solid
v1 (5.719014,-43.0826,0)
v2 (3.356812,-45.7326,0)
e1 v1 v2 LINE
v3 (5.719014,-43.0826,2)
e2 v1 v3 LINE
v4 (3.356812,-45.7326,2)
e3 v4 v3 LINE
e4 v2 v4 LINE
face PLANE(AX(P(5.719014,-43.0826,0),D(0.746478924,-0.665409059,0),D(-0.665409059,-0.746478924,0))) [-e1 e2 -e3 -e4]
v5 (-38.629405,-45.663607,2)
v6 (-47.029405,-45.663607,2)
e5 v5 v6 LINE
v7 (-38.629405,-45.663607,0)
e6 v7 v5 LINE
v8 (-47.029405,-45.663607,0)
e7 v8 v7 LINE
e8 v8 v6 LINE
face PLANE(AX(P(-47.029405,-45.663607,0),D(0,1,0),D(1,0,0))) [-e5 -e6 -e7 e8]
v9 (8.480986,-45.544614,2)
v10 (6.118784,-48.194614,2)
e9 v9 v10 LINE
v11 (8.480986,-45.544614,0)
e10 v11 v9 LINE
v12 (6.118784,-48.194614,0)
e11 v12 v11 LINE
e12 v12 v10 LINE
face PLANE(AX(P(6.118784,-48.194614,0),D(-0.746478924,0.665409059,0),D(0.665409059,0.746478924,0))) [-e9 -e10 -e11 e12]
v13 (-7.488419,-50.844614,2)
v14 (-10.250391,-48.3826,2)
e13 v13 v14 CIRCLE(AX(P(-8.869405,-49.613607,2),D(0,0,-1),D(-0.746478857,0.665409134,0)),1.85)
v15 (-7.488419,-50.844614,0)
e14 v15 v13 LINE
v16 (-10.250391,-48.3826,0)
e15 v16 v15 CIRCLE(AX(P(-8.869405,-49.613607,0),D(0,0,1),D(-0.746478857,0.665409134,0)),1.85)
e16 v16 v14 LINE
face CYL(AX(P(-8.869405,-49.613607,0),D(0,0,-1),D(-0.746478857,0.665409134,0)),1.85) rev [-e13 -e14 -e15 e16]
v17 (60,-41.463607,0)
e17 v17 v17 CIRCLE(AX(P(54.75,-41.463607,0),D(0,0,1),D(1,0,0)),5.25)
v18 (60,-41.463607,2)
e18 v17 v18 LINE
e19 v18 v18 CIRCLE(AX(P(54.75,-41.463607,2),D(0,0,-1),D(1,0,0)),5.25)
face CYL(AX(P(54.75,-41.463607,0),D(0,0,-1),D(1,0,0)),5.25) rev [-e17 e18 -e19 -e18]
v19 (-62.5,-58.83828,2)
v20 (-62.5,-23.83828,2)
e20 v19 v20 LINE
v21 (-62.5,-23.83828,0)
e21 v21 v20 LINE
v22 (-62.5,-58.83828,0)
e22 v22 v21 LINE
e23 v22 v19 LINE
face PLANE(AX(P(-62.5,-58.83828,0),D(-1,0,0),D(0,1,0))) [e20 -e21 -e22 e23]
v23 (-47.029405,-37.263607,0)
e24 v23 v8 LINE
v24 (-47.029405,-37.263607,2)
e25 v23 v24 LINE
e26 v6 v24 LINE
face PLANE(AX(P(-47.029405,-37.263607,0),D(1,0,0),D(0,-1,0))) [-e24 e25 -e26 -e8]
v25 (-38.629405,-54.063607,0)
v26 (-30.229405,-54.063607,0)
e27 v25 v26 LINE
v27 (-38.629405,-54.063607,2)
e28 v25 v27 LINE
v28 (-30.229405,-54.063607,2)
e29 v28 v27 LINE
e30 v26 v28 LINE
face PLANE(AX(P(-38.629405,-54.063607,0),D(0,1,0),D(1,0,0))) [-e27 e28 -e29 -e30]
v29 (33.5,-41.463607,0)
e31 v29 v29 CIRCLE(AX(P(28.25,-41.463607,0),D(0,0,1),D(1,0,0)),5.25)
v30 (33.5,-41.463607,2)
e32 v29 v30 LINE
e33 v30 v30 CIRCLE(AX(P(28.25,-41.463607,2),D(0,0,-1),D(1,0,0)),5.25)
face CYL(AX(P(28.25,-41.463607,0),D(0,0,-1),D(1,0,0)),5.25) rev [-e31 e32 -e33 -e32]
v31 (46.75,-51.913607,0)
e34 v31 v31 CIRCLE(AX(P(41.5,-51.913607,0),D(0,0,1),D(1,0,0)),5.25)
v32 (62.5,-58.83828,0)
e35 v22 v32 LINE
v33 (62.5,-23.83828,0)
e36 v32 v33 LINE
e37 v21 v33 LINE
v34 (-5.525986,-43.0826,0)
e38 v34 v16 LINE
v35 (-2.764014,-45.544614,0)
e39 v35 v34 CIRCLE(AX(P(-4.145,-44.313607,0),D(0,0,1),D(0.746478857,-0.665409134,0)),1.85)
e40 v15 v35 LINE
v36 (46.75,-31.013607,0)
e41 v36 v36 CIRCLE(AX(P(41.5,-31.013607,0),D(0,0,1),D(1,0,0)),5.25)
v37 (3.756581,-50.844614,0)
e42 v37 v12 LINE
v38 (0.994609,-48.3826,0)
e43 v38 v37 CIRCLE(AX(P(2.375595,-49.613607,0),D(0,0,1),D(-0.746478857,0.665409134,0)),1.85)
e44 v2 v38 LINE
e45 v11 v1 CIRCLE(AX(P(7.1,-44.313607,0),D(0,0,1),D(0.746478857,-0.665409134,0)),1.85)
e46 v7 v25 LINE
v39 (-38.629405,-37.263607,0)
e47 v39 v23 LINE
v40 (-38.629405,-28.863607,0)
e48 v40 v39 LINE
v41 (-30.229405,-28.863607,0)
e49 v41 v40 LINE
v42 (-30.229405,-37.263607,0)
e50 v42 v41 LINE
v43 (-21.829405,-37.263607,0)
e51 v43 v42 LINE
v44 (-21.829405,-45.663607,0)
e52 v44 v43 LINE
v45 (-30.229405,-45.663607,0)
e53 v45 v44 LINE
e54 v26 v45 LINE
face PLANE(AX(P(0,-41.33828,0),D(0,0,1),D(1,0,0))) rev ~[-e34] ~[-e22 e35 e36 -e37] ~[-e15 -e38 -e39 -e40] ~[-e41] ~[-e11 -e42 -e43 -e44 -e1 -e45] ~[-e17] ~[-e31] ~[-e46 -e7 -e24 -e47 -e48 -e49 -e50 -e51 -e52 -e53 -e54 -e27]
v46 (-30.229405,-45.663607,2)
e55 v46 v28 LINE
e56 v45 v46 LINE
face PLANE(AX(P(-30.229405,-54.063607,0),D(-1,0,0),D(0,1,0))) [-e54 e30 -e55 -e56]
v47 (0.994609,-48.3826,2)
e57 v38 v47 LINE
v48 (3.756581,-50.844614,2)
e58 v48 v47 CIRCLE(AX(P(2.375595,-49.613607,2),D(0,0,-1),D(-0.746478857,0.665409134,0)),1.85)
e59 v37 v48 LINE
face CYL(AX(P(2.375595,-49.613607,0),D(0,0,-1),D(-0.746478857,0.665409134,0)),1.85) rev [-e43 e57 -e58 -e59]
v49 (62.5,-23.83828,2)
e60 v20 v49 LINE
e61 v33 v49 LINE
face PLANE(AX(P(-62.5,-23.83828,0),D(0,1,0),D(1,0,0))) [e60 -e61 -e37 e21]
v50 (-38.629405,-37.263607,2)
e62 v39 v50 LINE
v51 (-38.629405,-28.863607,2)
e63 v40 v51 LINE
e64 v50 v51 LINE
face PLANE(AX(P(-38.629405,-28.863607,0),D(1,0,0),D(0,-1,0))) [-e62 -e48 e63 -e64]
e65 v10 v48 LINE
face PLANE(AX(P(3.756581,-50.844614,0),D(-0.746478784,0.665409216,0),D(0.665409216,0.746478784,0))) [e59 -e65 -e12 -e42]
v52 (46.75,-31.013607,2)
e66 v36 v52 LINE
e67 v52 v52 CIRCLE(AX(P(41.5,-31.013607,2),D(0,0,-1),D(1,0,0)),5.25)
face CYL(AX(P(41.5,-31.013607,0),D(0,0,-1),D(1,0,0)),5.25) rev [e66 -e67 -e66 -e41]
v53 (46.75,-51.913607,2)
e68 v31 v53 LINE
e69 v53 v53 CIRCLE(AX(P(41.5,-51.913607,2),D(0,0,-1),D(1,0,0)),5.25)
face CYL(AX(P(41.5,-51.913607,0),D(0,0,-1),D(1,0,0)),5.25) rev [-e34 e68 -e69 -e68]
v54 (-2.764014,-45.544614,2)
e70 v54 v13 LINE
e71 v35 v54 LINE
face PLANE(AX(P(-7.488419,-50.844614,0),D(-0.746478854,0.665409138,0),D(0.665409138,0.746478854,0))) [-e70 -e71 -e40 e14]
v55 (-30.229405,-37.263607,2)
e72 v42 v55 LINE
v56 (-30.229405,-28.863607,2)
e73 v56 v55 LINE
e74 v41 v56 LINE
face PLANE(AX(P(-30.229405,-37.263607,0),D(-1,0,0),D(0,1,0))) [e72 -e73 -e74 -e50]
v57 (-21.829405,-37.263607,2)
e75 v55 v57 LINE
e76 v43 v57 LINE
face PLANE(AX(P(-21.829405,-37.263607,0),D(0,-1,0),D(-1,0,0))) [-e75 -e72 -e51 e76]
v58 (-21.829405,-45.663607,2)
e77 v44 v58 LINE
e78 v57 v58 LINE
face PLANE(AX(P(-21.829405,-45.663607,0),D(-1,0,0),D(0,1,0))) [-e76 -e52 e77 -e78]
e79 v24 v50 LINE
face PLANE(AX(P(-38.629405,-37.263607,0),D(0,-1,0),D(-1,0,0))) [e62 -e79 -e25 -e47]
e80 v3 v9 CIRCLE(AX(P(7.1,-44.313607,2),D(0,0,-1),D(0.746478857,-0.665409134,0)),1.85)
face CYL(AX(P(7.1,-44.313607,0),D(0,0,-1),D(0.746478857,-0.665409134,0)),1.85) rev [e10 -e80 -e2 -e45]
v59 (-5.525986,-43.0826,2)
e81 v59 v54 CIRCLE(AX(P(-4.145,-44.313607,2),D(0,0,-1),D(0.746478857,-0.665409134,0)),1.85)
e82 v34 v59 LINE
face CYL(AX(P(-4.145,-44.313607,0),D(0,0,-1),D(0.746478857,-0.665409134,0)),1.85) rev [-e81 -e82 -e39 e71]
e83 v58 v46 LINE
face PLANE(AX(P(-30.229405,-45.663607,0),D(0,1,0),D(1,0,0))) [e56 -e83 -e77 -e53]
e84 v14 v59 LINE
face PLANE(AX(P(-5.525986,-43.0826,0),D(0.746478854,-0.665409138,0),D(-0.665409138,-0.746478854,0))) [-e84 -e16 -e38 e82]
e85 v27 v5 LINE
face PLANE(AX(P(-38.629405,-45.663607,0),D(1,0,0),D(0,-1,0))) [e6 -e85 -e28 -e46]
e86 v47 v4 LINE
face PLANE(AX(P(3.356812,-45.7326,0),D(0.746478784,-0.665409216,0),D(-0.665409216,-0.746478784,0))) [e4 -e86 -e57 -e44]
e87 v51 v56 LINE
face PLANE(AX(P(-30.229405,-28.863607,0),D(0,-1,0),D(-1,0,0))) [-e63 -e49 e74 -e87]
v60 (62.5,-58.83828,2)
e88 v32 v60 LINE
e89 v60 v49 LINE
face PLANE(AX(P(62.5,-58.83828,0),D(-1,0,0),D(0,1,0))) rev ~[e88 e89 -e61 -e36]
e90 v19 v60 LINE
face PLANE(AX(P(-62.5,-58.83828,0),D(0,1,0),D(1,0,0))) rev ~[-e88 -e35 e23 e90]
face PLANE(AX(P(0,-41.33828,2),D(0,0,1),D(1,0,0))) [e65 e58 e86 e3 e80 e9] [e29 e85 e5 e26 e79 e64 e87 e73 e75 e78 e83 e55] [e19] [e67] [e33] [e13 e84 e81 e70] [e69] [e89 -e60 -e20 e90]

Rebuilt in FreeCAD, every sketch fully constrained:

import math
import FreeCAD as App
import Part
import Sketcher
Q = App.Units.Quantity

doc = App.newDocument("Part")
body = doc.addObject("PartDesign::Body", "Body")

sketch1 = body.newObject("Sketcher::SketchObject", "Sketch")
sketch1.AttachmentSupport = (doc.getObject("XY_Plane"), [""])
sketch1.MapMode = "FlatFace"
sketch1.addGeometry([
    Part.LineSegment(App.Vector(-62.5, -23.83828, 0), App.Vector(-62.5, -58.83828, 0)),
    Part.LineSegment(App.Vector(-62.5, -58.83828, 0), App.Vector(62.5, -58.83828, 0)),
    Part.LineSegment(App.Vector(62.5, -58.83828, 0), App.Vector(62.5, -23.83828, 0)),
    Part.LineSegment(App.Vector(62.5, -23.83828, 0), App.Vector(-62.5, -23.83828, 0)),
], False)
sketch1.addConstraint([
    Sketcher.Constraint("Coincident", 0, 2, 1, 1),
    Sketcher.Constraint("Coincident", 1, 2, 2, 1),
    Sketcher.Constraint("Coincident", 2, 2, 3, 1),
    Sketcher.Constraint("Coincident", 3, 2, 0, 1),
    Sketcher.Constraint("Vertical", 0),
    Sketcher.Constraint("Horizontal", 1),
    Sketcher.Constraint("Vertical", 2),
    Sketcher.Constraint("Horizontal", 3),
    Sketcher.Constraint("DistanceX", 1, 1, 1, 2, Q("125 mm")),
    Sketcher.Constraint("DistanceY", 0, 2, 0, 1, Q("35 mm")),
    Sketcher.Constraint("DistanceX", 0, 2, -1, 1, Q("62.5 mm")),
    Sketcher.Constraint("DistanceY", 0, 2, -1, 1, Q("58.83828 mm")),
])
pad1 = body.newObject("PartDesign::Pad", "Pad")
pad1.Profile = sketch1
pad1.Length = 2

sketch2 = body.newObject("Sketcher::SketchObject", "Sketch001")
sketch2.AttachmentSupport = (doc.getObject("XY_Plane"), [""])
sketch2.MapMode = "FlatFace"
sketch2.addGeometry([
    Part.Circle(App.Vector(41.5, -31.013607, 0), App.Vector(0, 0, 1), 5.25),
    Part.Circle(App.Vector(54.75, -41.463607, 0), App.Vector(0, 0, 1), 5.25),
    Part.Circle(App.Vector(41.5, -51.913607, 0), App.Vector(0, 0, 1), 5.25),
    Part.Circle(App.Vector(28.25, -41.463607, 0), App.Vector(0, 0, 1), 5.25),
    Part.LineSegment(App.Vector(3.356812, -45.7326, 0), App.Vector(0.994609, -48.3826, 0)),
    Part.ArcOfCircle(Part.Circle(App.Vector(2.375595, -49.613607, 0), App.Vector(0, 0, 1), 1.85), math.radians(138.286279), math.radians(318.286279)),
    Part.LineSegment(App.Vector(3.756581, -50.844614, 0), App.Vector(6.118784, -48.194614, 0)),
    Part.LineSegment(App.Vector(6.118784, -48.194614, 0), App.Vector(8.480986, -45.544614, 0)),
    Part.ArcOfCircle(Part.Circle(App.Vector(7.1, -44.313607, 0), App.Vector(0, 0, 1), 1.85), math.radians(-41.713721), math.radians(138.286279)),
    Part.LineSegment(App.Vector(5.719014, -43.0826, 0), App.Vector(3.356812, -45.7326, 0)),
    Part.LineSegment(App.Vector(-5.525986, -43.0826, 0), App.Vector(-10.250391, -48.3826, 0)),
    Part.ArcOfCircle(Part.Circle(App.Vector(-8.869405, -49.613607, 0), App.Vector(0, 0, 1), 1.85), math.radians(138.286279), math.radians(318.286279)),
    Part.LineSegment(App.Vector(-7.488419, -50.844614, 0), App.Vector(-2.764014, -45.544614, 0)),
    Part.ArcOfCircle(Part.Circle(App.Vector(-4.145, -44.313607, 0), App.Vector(0, 0, 1), 1.85), math.radians(-41.713721), math.radians(138.286279)),
    Part.LineSegment(App.Vector(-21.829405, -37.263607, 0), App.Vector(-30.229405, -37.263607, 0)),
    Part.LineSegment(App.Vector(-30.229405, -37.263607, 0), App.Vector(-30.229405, -28.863607, 0)),
    Part.LineSegment(App.Vector(-30.229405, -28.863607, 0), App.Vector(-38.629405, -28.863607, 0)),
    Part.LineSegment(App.Vector(-38.629405, -28.863607, 0), App.Vector(-38.629405, -37.263607, 0)),
    Part.LineSegment(App.Vector(-38.629405, -37.263607, 0), App.Vector(-47.029405, -37.263607, 0)),
    Part.LineSegment(App.Vector(-47.029405, -37.263607, 0), App.Vector(-47.029405, -45.663607, 0)),
    Part.LineSegment(App.Vector(-47.029405, -45.663607, 0), App.Vector(-38.629405, -45.663607, 0)),
    Part.LineSegment(App.Vector(-38.629405, -45.663607, 0), App.Vector(-38.629405, -54.063607, 0)),
    Part.LineSegment(App.Vector(-38.629405, -54.063607, 0), App.Vector(-30.229405, -54.063607, 0)),
    Part.LineSegment(App.Vector(-30.229405, -54.063607, 0), App.Vector(-30.229405, -45.663607, 0)),
    Part.LineSegment(App.Vector(-30.229405, -45.663607, 0), App.Vector(-21.829405, -45.663607, 0)),
    Part.LineSegment(App.Vector(-21.829405, -45.663607, 0), App.Vector(-21.829405, -37.263607, 0)),
], False)
sketch2.addConstraint([
    Sketcher.Constraint("Tangent", 4, 2, 5, 1),
    Sketcher.Constraint("Tangent", 5, 2, 6, 1),
    Sketcher.Constraint("Coincident", 6, 2, 7, 1),
    Sketcher.Constraint("Tangent", 7, 2, 8, 1),
    Sketcher.Constraint("Tangent", 8, 2, 9, 1),
    Sketcher.Constraint("Coincident", 9, 2, 4, 1),
    Sketcher.Constraint("Tangent", 10, 2, 11, 1),
    Sketcher.Constraint("Tangent", 11, 2, 12, 1),
    Sketcher.Constraint("Tangent", 12, 2, 13, 1),
    Sketcher.Constraint("Tangent", 13, 2, 10, 1),
    Sketcher.Constraint("Coincident", 14, 2, 15, 1),
    Sketcher.Constraint("Coincident", 15, 2, 16, 1),
    Sketcher.Constraint("Coincident", 16, 2, 17, 1),
    Sketcher.Constraint("Coincident", 17, 2, 18, 1),
    Sketcher.Constraint("Coincident", 18, 2, 19, 1),
    Sketcher.Constraint("Coincident", 19, 2, 20, 1),
    Sketcher.Constraint("Coincident", 20, 2, 21, 1),
    Sketcher.Constraint("Coincident", 21, 2, 22, 1),
    Sketcher.Constraint("Coincident", 22, 2, 23, 1),
    Sketcher.Constraint("Coincident", 23, 2, 24, 1),
    Sketcher.Constraint("Coincident", 24, 2, 25, 1),
    Sketcher.Constraint("Coincident", 25, 2, 14, 1),
    Sketcher.Constraint("Horizontal", 14),
    Sketcher.Constraint("Vertical", 15),
    Sketcher.Constraint("Horizontal", 16),
    Sketcher.Constraint("Vertical", 17),
    Sketcher.Constraint("Horizontal", 18),
    Sketcher.Constraint("Vertical", 19),
    Sketcher.Constraint("Horizontal", 20),
    Sketcher.Constraint("Vertical", 21),
    Sketcher.Constraint("Horizontal", 22),
    Sketcher.Constraint("Vertical", 23),
    Sketcher.Constraint("Horizontal", 24),
    Sketcher.Constraint("Vertical", 25),
    Sketcher.Constraint("Equal", 0, 1),
    Sketcher.Constraint("Equal", 1, 2),
    Sketcher.Constraint("Equal", 2, 3),
    Sketcher.Constraint("Equal", 5, 8),
    Sketcher.Constraint("Equal", 8, 11),
    Sketcher.Constraint("Equal", 11, 13),
    Sketcher.Constraint("Parallel", 4, 6),
    Sketcher.Constraint("Parallel", 6, 7),
    Sketcher.Constraint("Parallel", 9, 10),
    Sketcher.Constraint("Horizontal", 1, 3, 3, 3),
    Sketcher.Constraint("Horizontal", 5, 3, 11, 3),
    Sketcher.Constraint("Horizontal", 8, 3, 13, 3),
    Sketcher.Constraint("Horizontal", 14, 2, 17, 2),
    Sketcher.Constraint("Horizontal", 20, 2, 23, 2),
    Sketcher.Constraint("Vertical", 0, 3, 2, 3),
    Sketcher.Constraint("Vertical", 17, 2, 20, 2),
    Sketcher.Constraint("Vertical", 15, 2, 22, 2),
    Sketcher.Constraint("Equal", 14, 16),
    Sketcher.Constraint("Equal", 16, 18),
    Sketcher.Constraint("Equal", 24, 15),
    Sketcher.Constraint("Equal", 17, 19),
    Sketcher.Constraint("Equal", 19, 21),
    Sketcher.Constraint("Equal", 4, 6),
    Sketcher.Constraint("Equal", 6, 7),
    Sketcher.Constraint("Diameter", 0, Q("10.5 mm")),
    Sketcher.Constraint("Radius", 5, Q("1.85 mm")),
    Sketcher.Constraint("DistanceX", 14, 2, 14, 1, Q("8.4 mm")),
    Sketcher.Constraint("Distance", 10, Q("7.1 mm")),
    Sketcher.Constraint("DistanceX", -1, 1, 0, 3, Q("41.5 mm")),
    Sketcher.Constraint("DistanceX", -1, 1, 8, 3, Q("7.1 mm")),
    Sketcher.Constraint("DistanceY", 2, 3, 0, 3, Q("20.9 mm")),
    Sketcher.Constraint("DistanceX", 3, 3, 1, 3, Q("26.5 mm")),
    Sketcher.Constraint("DistanceY", 2, 3, 5, 3, Q("2.3 mm")),
    Sketcher.Constraint("DistanceY", 5, 3, 8, 3, Q("5.3 mm")),
    Sketcher.Constraint("DistanceX", -1, 1, 1, 3, Q("54.75 mm")),
    Sketcher.Constraint("DistanceY", 1, 3, 0, 3, Q("10.45 mm")),
    Sketcher.Constraint("DistanceX", 14, 2, 11, 3, Q("21.36 mm")),
    Sketcher.Constraint("DistanceY", 11, 3, 14, 2, Q("12.35 mm")),
    Sketcher.Constraint("DistanceX", 13, 3, -1, 1, Q("4.145 mm")),
    Sketcher.Constraint("DistanceY", 4, 2, -1, 1, Q("48.3826 mm")),
])
pocket1 = body.newObject("PartDesign::Pocket", "Pocket")
pocket1.Profile = sketch2
pocket1.Length = 25
pocket1.Reversed = True

doc.recompute()
